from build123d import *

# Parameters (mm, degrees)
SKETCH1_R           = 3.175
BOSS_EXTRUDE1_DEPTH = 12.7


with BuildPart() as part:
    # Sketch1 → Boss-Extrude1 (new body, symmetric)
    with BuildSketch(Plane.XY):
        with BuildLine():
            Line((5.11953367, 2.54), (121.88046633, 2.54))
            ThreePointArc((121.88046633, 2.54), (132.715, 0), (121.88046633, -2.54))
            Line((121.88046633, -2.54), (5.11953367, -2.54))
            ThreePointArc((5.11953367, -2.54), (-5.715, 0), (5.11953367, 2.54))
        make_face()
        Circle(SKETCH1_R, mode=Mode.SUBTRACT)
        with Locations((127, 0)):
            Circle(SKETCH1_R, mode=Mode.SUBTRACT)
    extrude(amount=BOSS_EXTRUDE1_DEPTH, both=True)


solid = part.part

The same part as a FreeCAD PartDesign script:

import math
import FreeCAD as App
import Part
import Sketcher

V = App.Vector
Q = App.Units.Quantity

doc = App.newDocument("Part")
params = doc.addObject("Spreadsheet::Sheet", "Params")
for row, (alias, value) in enumerate([
    ("sketch1_diameter", "0.25 in"),
    ("sketch1_radius", "0.225 in"),
    ("pad1_length", "1 in"),
], start=1):
    params.set(f"A{row}", alias)
    params.set(f"B{row}", "=" + value)
    params.setAlias(f"B{row}", alias)

body = doc.addObject("PartDesign::Body", "Body")

# Sketch on XY plane
sketch1 = body.newObject("Sketcher::SketchObject", "Sketch")
sketch1.AttachmentSupport = (doc.getObject("XY_Plane"), [""])
sketch1.MapMode = "FlatFace"
sketch1.addGeometry(Part.LineSegment(V(121.880466, 2.54, 0), V(5.119534, 2.54, 0)), False)
sketch1.addGeometry(Part.ArcOfCircle(Part.Circle(V(0, 0, 0), V(0, 0, 1), 5.715), math.radians(26.3878), math.radians(333.6122)), False)
sketch1.addGeometry(Part.LineSegment(V(5.119534, -2.54, 0), V(121.880466, -2.54, 0)), False)
sketch1.addGeometry(Part.ArcOfCircle(Part.Circle(V(127, 0, 0), V(0, 0, 1), 5.715), math.radians(-153.6122), math.radians(153.6122)), False)
sketch1.addGeometry(Part.Circle(V(127, 0, 0), V(0, 0, 1), 3.175), False)
sketch1.addGeometry(Part.Circle(V(0, 0, 0), V(0, 0, 1), 3.175), False)
sketch1.addConstraint(Sketcher.Constraint("Coincident", 0, 2, 1, 1))
sketch1.addConstraint(Sketcher.Constraint("Coincident", 1, 2, 2, 1))
sketch1.addConstraint(Sketcher.Constraint("Coincident", 2, 2, 3, 1))
sketch1.addConstraint(Sketcher.Constraint("Coincident", 3, 2, 0, 1))
sketch1.addConstraint(Sketcher.Constraint("Horizontal", 0))
sketch1.addConstraint(Sketcher.Constraint("Horizontal", 2))
sketch1.addConstraint(Sketcher.Constraint("Coincident", 1, 3, -1, 1))
sketch1.addConstraint(Sketcher.Constraint("Coincident", 5, 3, -1, 1))
sketch1.addConstraint(Sketcher.Constraint("Coincident", 4, 3, 3, 3))
sketch1.addConstraint(Sketcher.Constraint("Equal", 1, 3))
sketch1.addConstraint(Sketcher.Constraint("Equal", 4, 5))
sketch1.addConstraint(Sketcher.Constraint("Symmetric", 2, 2, 3, 2, -1))
sketch1.addConstraint(Sketcher.Constraint("Diameter", 4, Q("0.25 in")))
sketch1.addConstraint(Sketcher.Constraint("DistanceX", -1, 1, 3, 3, Q("5 in")))
sketch1.addConstraint(Sketcher.Constraint("Radius", 1, Q("0.225 in")))
sketch1.addConstraint(Sketcher.Constraint("DistanceY", -1, 1, 0, 2, Q("0.1 in")))
sketch1.setExpression("Constraints[12]", "Params.sketch1_diameter")
sketch1.setExpression("Constraints[14]", "Params.sketch1_radius")
pad1 = body.newObject("PartDesign::Pad", "Pad")
pad1.Profile = sketch1
pad1.setExpression("Length", "Params.pad1_length")
pad1.Midplane = True

doc.recompute()
